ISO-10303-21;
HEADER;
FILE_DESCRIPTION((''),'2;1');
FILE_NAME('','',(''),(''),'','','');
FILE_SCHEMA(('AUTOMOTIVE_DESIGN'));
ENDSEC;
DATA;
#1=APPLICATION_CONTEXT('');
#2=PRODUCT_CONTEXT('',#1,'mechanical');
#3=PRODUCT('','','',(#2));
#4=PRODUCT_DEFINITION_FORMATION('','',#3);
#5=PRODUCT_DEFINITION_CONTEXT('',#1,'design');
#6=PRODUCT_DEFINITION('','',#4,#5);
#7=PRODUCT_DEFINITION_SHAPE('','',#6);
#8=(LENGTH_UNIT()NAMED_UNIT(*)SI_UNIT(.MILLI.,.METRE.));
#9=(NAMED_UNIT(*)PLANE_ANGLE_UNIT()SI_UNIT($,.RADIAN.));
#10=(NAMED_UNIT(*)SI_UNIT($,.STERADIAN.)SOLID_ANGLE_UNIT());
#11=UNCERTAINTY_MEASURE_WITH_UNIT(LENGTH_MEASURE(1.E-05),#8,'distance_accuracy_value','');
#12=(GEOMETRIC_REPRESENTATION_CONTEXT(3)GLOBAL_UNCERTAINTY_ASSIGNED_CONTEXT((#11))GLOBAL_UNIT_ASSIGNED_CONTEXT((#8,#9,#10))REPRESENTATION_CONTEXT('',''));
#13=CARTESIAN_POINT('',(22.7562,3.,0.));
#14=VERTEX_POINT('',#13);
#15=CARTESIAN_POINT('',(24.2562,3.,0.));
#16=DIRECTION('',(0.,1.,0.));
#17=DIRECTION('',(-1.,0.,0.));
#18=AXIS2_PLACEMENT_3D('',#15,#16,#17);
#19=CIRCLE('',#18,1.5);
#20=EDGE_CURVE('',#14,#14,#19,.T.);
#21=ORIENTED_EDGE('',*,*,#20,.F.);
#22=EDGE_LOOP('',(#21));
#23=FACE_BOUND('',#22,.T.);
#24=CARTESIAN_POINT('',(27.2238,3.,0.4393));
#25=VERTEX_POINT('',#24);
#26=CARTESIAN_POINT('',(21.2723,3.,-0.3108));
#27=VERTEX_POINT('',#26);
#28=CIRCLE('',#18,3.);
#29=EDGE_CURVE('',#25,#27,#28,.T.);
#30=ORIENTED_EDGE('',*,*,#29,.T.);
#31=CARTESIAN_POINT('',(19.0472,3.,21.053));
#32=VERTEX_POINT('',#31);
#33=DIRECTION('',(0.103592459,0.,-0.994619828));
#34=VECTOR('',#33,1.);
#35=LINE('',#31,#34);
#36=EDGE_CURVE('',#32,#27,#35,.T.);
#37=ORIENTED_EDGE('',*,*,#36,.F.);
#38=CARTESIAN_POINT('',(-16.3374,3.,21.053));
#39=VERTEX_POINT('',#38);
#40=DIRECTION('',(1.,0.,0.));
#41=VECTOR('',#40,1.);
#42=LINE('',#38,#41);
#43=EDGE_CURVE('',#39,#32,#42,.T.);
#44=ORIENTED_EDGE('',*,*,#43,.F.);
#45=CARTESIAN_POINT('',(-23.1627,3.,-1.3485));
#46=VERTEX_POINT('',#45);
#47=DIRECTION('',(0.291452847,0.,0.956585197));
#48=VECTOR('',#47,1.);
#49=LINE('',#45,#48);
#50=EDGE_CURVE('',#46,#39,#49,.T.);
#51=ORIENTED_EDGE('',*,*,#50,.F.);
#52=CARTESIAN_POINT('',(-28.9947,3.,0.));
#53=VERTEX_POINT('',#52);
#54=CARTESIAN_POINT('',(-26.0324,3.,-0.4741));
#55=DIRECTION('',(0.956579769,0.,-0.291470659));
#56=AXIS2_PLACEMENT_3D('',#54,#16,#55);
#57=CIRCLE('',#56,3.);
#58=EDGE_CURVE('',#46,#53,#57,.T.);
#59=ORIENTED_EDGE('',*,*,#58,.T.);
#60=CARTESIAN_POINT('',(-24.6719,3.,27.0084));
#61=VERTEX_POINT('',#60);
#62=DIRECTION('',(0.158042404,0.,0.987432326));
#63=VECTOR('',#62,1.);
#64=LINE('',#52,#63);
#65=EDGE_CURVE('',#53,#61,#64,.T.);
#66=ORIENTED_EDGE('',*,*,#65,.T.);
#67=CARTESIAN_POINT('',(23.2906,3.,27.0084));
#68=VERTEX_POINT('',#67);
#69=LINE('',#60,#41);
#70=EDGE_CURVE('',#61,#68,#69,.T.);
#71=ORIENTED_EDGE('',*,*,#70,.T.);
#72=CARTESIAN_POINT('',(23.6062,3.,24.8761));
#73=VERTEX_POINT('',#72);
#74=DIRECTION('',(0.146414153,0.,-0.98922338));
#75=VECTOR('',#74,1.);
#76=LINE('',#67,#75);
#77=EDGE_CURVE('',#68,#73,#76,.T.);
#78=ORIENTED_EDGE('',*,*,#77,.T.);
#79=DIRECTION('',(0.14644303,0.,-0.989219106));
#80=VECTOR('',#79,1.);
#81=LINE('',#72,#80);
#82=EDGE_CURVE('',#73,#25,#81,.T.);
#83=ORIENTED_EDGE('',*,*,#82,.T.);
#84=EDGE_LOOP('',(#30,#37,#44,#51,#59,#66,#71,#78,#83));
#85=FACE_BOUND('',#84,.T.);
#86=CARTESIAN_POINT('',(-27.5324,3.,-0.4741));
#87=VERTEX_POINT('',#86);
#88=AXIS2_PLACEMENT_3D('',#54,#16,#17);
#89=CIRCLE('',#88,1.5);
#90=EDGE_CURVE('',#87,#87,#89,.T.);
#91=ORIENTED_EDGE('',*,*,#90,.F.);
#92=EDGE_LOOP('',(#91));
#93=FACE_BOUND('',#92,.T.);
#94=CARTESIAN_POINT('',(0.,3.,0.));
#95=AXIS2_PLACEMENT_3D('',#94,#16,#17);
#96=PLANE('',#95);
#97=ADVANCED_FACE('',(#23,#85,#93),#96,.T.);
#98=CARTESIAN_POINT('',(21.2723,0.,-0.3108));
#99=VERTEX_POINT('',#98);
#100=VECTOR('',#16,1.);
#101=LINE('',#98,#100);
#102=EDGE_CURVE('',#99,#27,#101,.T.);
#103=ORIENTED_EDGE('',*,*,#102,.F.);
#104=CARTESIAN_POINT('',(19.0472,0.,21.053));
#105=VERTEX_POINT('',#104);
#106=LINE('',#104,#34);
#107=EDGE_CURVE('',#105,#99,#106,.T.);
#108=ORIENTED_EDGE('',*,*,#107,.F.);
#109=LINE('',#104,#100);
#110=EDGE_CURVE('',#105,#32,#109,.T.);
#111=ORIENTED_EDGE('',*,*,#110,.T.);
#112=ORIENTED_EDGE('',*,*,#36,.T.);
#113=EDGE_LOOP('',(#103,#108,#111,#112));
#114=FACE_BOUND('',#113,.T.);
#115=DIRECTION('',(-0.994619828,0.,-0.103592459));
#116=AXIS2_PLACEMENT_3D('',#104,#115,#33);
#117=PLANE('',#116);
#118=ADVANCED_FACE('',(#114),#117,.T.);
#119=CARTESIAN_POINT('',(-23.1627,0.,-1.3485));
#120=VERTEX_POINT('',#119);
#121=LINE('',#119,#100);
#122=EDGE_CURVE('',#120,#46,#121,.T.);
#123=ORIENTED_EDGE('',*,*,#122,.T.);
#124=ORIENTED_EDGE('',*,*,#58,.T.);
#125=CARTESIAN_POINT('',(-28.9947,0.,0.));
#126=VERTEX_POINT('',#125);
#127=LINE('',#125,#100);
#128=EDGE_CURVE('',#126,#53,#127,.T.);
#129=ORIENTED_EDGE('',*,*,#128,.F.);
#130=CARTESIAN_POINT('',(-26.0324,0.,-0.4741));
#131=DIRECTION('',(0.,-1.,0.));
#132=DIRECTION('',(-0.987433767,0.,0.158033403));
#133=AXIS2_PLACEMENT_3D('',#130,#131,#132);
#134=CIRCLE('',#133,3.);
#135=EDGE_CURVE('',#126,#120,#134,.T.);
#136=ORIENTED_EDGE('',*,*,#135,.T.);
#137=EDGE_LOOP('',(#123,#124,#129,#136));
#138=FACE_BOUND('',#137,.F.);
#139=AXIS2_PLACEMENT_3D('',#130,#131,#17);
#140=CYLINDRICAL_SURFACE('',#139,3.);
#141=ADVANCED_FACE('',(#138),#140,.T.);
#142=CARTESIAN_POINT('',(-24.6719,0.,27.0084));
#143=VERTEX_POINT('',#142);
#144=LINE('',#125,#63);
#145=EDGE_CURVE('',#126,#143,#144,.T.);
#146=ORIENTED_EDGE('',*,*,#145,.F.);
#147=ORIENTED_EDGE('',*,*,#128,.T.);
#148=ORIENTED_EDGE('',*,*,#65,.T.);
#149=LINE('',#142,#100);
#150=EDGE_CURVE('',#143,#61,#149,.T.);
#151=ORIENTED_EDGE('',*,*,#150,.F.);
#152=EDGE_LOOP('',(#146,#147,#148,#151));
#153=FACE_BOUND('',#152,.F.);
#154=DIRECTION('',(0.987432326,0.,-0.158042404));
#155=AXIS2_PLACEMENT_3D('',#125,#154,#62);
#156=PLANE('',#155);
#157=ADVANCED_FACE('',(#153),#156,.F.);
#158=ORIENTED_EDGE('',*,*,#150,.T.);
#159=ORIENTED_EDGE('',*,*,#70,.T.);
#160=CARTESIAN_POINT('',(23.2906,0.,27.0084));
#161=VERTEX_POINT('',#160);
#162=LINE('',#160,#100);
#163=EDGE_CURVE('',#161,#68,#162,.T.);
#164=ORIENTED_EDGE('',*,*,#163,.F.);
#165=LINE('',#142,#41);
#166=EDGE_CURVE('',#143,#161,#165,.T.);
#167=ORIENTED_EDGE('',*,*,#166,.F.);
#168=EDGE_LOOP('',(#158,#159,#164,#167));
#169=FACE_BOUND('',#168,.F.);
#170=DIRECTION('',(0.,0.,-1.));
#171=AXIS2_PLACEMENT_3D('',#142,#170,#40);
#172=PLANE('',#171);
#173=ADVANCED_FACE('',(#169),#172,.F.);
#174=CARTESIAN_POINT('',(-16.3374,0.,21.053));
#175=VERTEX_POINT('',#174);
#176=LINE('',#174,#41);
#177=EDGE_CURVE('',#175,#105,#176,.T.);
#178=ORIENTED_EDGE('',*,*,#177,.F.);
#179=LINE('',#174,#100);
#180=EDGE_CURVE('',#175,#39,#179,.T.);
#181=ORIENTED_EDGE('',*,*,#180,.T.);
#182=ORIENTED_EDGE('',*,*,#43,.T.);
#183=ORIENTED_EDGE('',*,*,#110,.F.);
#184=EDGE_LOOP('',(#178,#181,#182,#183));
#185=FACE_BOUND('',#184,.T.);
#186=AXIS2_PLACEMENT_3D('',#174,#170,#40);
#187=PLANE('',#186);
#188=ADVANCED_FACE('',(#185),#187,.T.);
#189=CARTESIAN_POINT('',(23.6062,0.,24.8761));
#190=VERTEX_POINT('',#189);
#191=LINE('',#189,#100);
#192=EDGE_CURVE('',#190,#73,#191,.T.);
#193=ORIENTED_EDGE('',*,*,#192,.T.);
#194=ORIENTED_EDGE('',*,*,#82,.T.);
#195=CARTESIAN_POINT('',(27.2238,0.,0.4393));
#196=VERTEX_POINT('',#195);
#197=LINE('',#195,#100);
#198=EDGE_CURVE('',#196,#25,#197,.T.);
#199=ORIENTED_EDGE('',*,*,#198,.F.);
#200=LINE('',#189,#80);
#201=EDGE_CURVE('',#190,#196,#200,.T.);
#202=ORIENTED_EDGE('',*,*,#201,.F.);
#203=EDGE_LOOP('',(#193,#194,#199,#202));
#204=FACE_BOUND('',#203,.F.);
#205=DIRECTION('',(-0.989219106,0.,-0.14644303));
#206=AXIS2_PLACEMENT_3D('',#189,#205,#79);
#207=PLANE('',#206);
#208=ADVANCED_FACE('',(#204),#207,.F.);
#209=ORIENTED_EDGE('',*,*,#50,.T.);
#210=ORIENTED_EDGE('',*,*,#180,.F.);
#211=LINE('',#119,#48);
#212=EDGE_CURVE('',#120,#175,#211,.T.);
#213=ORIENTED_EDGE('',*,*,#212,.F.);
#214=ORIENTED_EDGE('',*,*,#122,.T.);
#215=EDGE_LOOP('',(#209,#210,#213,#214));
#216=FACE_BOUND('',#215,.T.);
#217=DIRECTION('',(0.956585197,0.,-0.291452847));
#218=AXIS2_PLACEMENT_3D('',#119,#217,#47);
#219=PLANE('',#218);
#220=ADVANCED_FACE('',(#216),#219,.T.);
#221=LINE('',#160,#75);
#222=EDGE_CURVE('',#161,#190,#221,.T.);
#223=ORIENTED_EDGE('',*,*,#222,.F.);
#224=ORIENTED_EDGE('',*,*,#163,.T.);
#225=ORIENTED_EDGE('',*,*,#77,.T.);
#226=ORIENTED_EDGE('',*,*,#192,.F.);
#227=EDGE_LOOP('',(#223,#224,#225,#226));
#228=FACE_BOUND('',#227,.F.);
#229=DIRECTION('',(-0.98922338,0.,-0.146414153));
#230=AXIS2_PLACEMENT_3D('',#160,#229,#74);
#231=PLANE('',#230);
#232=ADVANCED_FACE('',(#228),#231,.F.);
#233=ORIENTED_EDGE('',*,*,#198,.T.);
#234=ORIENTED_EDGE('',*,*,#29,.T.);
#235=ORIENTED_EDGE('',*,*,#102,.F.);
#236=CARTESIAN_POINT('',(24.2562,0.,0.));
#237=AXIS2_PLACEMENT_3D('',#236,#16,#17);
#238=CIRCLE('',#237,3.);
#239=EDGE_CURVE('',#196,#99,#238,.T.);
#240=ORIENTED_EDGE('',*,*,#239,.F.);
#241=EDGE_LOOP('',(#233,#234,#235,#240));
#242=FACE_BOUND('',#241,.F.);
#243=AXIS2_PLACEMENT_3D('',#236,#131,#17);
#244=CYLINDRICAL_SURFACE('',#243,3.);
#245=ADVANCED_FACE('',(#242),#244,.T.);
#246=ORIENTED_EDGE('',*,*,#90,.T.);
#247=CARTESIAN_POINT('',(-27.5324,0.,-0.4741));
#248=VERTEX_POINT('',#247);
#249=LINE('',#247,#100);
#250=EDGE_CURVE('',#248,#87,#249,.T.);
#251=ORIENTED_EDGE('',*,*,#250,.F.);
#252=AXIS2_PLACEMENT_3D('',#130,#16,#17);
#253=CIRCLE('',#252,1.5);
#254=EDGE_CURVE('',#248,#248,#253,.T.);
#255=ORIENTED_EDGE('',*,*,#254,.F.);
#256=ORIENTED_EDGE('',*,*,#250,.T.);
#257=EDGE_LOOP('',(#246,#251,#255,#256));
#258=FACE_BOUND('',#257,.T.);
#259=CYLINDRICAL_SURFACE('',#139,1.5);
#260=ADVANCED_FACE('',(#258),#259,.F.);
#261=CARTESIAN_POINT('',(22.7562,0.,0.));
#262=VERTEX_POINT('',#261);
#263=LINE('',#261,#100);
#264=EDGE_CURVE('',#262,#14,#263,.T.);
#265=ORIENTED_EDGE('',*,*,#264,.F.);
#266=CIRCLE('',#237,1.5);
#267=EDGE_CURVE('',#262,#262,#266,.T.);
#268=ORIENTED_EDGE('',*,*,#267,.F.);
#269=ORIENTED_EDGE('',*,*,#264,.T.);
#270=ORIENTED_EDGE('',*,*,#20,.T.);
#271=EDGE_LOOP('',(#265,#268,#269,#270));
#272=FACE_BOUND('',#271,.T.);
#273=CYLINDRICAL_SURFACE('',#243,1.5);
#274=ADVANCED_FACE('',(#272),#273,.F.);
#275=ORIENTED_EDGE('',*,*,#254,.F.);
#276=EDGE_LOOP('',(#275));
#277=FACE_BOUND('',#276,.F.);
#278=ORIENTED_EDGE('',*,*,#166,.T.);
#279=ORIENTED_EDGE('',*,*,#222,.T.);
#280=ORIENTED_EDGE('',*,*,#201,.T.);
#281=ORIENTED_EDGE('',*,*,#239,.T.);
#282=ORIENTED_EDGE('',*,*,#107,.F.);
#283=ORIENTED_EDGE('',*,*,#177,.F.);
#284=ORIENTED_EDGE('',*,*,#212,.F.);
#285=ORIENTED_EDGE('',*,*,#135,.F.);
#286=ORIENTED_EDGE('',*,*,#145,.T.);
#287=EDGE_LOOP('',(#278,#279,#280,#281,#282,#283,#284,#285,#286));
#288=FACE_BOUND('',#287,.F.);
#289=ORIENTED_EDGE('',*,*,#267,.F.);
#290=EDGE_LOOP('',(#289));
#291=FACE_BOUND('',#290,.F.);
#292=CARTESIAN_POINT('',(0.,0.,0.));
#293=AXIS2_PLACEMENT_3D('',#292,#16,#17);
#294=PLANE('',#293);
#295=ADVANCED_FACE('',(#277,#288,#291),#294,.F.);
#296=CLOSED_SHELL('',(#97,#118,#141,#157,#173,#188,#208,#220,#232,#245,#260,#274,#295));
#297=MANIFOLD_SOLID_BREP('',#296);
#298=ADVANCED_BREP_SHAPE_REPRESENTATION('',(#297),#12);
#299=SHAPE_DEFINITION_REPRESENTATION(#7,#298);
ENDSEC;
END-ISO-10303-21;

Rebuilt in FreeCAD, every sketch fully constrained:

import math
import FreeCAD as App
import Part
import Sketcher
Q = App.Units.Quantity

doc = App.newDocument("Part")
body = doc.addObject("PartDesign::Body", "Body")

sketch1 = doc.addObject("Sketcher::SketchObject", "Sketch")
body.addObject(sketch1)
sketch1.AttachmentSupport = (doc.XZ_Plane, [""])
sketch1.MapMode = "FlatFace"
sketch1.addGeometry([
    Part.ArcOfCircle(Part.Circle(App.Vector(24.2562, 0, 0), App.Vector(0, 0, 1), 3), math.radians(-174.053572), math.radians(8.420462)),
    Part.LineSegment(App.Vector(21.2723, -0.3108, 0), App.Vector(19.0472, 21.053, 0)),
    Part.LineSegment(App.Vector(19.0472, 21.053, 0), App.Vector(-16.3374, 21.053, 0)),
    Part.LineSegment(App.Vector(-16.3374, 21.053, 0), App.Vector(-23.1627, -1.3485, 0)),
    Part.ArcOfCircle(Part.Circle(App.Vector(-26.0324, -0.4741, 0), App.Vector(0, 0, 1), 3), math.radians(170.907234), math.radians(343.053977)),
    Part.LineSegment(App.Vector(-28.9947, 0, 0), App.Vector(-24.6719, 27.0084, 0)),
    Part.LineSegment(App.Vector(-24.6719, 27.0084, 0), App.Vector(23.2906, 27.0084, 0)),
    Part.LineSegment(App.Vector(23.2906, 27.0084, 0), App.Vector(23.6062, 24.8761, 0)),
    Part.LineSegment(App.Vector(23.6062, 24.8761, 0), App.Vector(27.2238, 0.4393, 0)),
    Part.Circle(App.Vector(24.2562, 0, 0), App.Vector(0, 0, 1), 1.5),
    Part.Circle(App.Vector(-26.0324, -0.4741, 0), App.Vector(0, 0, 1), 1.5),
], False)
sketch1.addConstraint([
    Sketcher.Constraint("Coincident", 0, 1, 1, 1),
    Sketcher.Constraint("Coincident", 1, 2, 2, 1),
    Sketcher.Constraint("Coincident", 2, 2, 3, 1),
    Sketcher.Constraint("Coincident", 3, 2, 4, 2),
    Sketcher.Constraint("Coincident", 4, 1, 5, 1),
    Sketcher.Constraint("Coincident", 5, 2, 6, 1),
    Sketcher.Constraint("Coincident", 6, 2, 7, 1),
    Sketcher.Constraint("Coincident", 7, 2, 8, 1),
    Sketcher.Constraint("Coincident", 8, 2, 0, 2),
    Sketcher.Constraint("Horizontal", 2),
    Sketcher.Constraint("Horizontal", 6),
    Sketcher.Constraint("Coincident", 9, 3, 0, 3),
    Sketcher.Constraint("Coincident", 10, 3, 4, 3),
    Sketcher.Constraint("PointOnObject", 0, 3, -1),
    Sketcher.Constraint("PointOnObject", 4, 1, -1),
    Sketcher.Constraint("Diameter", 9, Q("3 mm")),
    Sketcher.Constraint("Diameter", 10, Q("3 mm")),
    Sketcher.Constraint("Radius", 0, Q("3 mm")),
    Sketcher.Constraint("Radius", 4, Q("3 mm")),
    Sketcher.Constraint("DistanceX", 7, 2, 0, 3, Q("0.65 mm")),
    Sketcher.Constraint("DistanceY", 0, 1, 8, 2, Q("0.75 mm")),
    Sketcher.Constraint("DistanceX", 2, 2, 2, 1, Q("35.3846 mm")),
    Sketcher.Constraint("DistanceX", 6, 1, 6, 2, Q("47.9625 mm")),
    Sketcher.Constraint("DistanceY", 4, 3, -1, 1, Q("0.474 mm")),
    Sketcher.Constraint("DistanceY", -1, 1, 1, 2, Q("21.053 mm")),
    Sketcher.Constraint("DistanceX", 5, 2, -1, 1, Q("24.672 mm")),
    Sketcher.Constraint("DistanceY", -1, 1, 7, 2, Q("24.876 mm")),
    Sketcher.Constraint("DistanceX", 1, 2, 0, 3, Q("5.209 mm")),
    Sketcher.Constraint("DistanceX", 4, 3, 2, 2, Q("9.695 mm")),
    Sketcher.Constraint("DistanceX", 3, 2, 0, 1, Q("44.435 mm")),
    Sketcher.Constraint("DistanceX", 3, 2, 0, 3, Q("47.419 mm")),
    Sketcher.Constraint("DistanceY", 3, 2, 5, 2, Q("28.357 mm")),
    Sketcher.Constraint("DistanceX", 2, 2, 6, 2, Q("39.628 mm")),
])
pad1 = doc.addObject("PartDesign::Pad", "Pad")
body.addObject(pad1)
pad1.Profile = sketch1
pad1.Length = 3
pad1.Reversed = True

doc.recompute()
